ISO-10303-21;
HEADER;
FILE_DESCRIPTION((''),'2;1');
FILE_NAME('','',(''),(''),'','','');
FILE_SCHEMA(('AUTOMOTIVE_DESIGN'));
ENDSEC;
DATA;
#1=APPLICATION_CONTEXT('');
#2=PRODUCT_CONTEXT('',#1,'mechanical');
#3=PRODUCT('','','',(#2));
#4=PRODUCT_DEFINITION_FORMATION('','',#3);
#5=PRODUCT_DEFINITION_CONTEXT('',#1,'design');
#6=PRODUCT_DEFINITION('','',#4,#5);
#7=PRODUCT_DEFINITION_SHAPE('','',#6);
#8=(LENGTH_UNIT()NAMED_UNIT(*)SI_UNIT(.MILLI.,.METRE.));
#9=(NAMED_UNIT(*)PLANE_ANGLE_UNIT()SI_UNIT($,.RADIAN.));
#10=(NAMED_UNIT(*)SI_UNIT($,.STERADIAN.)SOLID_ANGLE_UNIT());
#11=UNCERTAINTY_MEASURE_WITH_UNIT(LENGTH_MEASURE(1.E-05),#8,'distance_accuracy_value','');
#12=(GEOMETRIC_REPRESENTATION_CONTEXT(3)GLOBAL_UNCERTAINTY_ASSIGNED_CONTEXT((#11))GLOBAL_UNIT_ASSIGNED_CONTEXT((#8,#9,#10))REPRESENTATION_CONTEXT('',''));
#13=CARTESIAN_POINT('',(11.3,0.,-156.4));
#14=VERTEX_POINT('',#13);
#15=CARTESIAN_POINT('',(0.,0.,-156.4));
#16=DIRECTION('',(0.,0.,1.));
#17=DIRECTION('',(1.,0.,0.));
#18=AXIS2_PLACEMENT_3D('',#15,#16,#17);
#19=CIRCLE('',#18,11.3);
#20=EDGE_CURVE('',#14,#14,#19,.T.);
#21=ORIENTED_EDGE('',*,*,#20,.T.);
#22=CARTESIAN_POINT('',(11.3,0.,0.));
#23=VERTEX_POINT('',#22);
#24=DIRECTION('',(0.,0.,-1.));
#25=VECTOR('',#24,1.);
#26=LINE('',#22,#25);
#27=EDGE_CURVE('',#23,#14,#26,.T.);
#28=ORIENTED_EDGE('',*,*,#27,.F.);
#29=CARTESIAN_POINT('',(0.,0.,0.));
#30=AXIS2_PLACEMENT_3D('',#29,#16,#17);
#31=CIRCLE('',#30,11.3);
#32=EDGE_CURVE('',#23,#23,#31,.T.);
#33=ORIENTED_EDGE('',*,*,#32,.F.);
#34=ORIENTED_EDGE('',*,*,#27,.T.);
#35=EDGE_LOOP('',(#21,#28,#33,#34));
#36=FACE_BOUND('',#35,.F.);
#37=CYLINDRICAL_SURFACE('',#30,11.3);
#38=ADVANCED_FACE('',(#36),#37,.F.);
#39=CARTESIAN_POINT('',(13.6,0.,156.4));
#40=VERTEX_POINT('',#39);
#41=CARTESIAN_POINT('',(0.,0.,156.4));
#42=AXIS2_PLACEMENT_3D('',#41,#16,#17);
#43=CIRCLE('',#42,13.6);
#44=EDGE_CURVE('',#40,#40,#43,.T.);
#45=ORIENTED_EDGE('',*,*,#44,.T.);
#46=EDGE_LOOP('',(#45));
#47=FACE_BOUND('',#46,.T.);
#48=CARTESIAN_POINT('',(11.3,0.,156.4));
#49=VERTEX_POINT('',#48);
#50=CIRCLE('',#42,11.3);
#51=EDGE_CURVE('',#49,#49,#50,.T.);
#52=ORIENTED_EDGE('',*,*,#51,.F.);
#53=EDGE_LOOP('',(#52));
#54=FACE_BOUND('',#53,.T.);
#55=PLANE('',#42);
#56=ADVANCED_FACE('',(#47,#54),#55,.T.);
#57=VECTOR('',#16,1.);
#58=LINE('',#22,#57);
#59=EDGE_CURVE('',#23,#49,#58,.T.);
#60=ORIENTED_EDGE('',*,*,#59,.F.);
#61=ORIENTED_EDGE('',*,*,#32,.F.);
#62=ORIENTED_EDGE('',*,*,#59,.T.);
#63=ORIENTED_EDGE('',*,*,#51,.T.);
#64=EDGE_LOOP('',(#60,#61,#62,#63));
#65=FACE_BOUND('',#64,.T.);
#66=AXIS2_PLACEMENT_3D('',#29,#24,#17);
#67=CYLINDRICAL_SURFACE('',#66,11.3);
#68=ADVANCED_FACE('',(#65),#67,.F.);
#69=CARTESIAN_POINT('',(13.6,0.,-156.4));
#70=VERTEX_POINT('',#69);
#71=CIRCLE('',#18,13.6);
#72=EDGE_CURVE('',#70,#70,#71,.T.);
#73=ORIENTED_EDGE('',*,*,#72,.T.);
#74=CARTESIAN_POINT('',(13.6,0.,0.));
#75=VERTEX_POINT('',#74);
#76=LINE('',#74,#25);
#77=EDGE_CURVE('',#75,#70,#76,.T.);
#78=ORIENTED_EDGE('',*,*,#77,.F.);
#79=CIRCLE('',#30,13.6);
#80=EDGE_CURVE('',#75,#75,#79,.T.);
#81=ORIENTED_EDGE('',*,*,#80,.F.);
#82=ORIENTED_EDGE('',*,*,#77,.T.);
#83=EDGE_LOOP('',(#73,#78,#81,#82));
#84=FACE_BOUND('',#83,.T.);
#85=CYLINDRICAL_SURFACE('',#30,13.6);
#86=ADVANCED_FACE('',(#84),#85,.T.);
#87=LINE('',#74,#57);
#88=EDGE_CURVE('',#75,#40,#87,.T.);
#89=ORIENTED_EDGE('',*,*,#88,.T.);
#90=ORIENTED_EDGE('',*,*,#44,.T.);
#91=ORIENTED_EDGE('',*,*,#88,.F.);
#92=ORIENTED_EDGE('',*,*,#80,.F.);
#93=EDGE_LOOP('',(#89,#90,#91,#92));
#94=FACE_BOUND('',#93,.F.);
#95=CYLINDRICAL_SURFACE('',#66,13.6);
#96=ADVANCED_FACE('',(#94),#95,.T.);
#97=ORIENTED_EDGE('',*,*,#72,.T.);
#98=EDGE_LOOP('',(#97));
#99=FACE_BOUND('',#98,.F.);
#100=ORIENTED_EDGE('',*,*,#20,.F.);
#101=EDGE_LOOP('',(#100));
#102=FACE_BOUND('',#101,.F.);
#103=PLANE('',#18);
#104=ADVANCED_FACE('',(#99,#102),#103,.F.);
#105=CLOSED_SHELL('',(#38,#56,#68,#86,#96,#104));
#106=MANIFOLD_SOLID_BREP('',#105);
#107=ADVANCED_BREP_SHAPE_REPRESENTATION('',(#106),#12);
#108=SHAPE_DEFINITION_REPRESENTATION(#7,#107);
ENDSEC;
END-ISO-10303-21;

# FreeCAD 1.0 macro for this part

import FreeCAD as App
import Part
import Sketcher
Q = App.Units.Quantity

doc = App.newDocument("Part")
body = doc.addObject("PartDesign::Body", "Body")

sketch1 = body.newObject("Sketcher::SketchObject", "Sketch")
sketch1.AttachmentSupport = (doc.getObject("XY_Plane"), [""])
sketch1.MapMode = "FlatFace"
sketch1.addGeometry(Part.Circle(App.Vector(0, 0, 0), App.Vector(0, 0, 1), 14), False)
sketch1.addGeometry(Part.Circle(App.Vector(0, 0, 0), App.Vector(0, 0, 1), 11), False)
sketch1.addConstraint(Sketcher.Constraint("Coincident", 0, 3, -1, 1))
sketch1.addConstraint(Sketcher.Constraint("Coincident", 1, 3, -1, 1))
sketch1.addConstraint(Sketcher.Constraint("Diameter", 0, Q("27.2 mm")))
sketch1.addConstraint(Sketcher.Constraint("Diameter", 1, Q("22.6 mm")))
pad1 = body.newObject("PartDesign::Pad", "Pad")
pad1.Profile = sketch1
pad1.Length = 312.8
pad1.Midplane = True

doc.recompute()
